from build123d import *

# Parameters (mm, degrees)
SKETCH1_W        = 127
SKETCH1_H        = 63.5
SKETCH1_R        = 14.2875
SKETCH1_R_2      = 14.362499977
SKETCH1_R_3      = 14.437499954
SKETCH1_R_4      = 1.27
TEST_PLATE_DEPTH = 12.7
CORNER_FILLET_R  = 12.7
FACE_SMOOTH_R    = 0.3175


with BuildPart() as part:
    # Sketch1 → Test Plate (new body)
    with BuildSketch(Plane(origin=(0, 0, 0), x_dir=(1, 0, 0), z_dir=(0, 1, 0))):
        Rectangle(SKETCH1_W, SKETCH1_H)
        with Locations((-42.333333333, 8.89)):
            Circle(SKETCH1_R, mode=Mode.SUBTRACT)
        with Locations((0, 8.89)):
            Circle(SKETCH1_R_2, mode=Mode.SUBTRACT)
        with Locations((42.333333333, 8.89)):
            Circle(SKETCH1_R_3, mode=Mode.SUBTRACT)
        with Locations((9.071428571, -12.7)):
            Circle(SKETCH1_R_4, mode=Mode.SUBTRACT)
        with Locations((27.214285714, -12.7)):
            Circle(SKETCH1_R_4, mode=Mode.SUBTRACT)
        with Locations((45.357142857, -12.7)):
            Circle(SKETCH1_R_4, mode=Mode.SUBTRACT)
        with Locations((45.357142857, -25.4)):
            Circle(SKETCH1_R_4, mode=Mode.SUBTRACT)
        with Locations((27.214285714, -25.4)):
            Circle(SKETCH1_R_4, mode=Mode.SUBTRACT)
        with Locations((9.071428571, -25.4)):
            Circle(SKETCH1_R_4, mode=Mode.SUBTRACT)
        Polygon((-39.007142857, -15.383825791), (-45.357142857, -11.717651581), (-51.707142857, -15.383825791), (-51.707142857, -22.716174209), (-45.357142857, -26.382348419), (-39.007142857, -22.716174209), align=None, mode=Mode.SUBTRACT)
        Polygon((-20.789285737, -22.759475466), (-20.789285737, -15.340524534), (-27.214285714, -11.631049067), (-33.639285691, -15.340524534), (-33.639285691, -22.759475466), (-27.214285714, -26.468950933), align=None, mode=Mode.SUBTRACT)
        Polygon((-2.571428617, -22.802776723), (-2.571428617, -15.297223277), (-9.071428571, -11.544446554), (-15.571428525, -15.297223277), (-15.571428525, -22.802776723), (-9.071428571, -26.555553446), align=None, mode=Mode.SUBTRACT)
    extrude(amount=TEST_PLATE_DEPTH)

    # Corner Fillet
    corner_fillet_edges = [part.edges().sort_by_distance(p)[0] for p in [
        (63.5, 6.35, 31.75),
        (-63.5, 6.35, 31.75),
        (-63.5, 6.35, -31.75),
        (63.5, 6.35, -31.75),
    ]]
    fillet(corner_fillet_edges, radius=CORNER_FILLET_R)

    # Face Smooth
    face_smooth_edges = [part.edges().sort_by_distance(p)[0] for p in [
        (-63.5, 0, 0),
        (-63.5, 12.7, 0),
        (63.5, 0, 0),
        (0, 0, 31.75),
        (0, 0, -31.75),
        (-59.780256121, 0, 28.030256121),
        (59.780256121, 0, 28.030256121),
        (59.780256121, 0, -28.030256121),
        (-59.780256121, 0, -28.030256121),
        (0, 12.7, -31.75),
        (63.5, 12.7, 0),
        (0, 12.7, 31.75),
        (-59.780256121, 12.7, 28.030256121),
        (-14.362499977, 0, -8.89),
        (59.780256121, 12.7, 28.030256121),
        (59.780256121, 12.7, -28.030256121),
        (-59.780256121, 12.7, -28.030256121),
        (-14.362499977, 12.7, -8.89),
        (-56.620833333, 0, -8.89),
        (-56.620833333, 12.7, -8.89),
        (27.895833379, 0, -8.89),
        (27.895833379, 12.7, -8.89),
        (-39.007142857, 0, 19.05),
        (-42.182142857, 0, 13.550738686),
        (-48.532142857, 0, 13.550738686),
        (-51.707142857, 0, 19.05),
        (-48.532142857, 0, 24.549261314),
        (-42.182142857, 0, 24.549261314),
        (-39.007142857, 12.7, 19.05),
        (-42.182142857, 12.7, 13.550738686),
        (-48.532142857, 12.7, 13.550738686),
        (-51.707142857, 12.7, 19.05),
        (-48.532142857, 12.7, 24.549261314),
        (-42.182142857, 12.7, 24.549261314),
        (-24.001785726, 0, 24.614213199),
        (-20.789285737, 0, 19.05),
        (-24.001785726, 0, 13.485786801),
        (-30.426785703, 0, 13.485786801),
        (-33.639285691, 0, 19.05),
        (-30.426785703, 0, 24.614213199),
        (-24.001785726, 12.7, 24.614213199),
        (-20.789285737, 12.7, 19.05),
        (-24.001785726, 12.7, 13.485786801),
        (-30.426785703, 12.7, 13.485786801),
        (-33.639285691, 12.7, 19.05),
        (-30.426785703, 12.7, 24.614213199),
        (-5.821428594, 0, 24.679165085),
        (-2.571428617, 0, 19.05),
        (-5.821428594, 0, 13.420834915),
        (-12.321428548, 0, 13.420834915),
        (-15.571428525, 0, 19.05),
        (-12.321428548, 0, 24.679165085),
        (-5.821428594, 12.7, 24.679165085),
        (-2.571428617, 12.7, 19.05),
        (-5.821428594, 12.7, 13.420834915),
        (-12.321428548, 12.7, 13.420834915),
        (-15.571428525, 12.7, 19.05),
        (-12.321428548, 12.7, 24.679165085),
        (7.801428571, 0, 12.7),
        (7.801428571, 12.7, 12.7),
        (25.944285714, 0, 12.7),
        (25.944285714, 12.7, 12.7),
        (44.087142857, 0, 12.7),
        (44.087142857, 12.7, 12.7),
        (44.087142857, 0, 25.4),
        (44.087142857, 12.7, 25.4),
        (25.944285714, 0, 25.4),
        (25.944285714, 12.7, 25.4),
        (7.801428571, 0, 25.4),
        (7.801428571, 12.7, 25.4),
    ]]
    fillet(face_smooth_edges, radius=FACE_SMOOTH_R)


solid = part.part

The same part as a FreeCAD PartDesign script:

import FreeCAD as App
import Part
import Sketcher
Q = App.Units.Quantity


def edges_at(feature, points):
    """Names of the edges that pass closest to the given points."""
    edges = feature.Shape.Edges
    near = lambda p: min(range(len(edges)), key=lambda i: edges[i].distToShape(Part.Vertex(*p))[0])
    return sorted({f"Edge{near(p) + 1}" for p in points})


def add_polygon(sketch, points):
    """Adds a closed chain of lines whose ends are joined by coincident constraints."""
    first, n = sketch.GeometryCount, len(points)
    for a, b in zip(points, points[1:] + points[:1]):
        sketch.addGeometry(Part.LineSegment(App.Vector(*a, 0), App.Vector(*b, 0)), False)
    for i in range(n):
        sketch.addConstraint(Sketcher.Constraint("Coincident", first + i, 2, first + (i + 1) % n, 1))

doc = App.newDocument("Part")
body = doc.addObject("PartDesign::Body", "Body")

# Sketch on XZ plane
sketch1 = body.newObject("Sketcher::SketchObject", "Sketch")
sketch1.AttachmentSupport = (doc.getObject("XZ_Plane"), [""])
sketch1.MapMode = "FlatFace"
add_polygon(sketch1, [(-63.5, -31.8), (-63.5, 31.8), (63.5, 31.8), (63.5, -31.8)])  # lines 0-3
add_polygon(sketch1, [(-45.4, 11.7), (-39, 15.4), (-39, 22.7), (-45.4, 26.4), (-51.7, 22.7), (-51.7, 15.4)])  # lines 4-9
add_polygon(sketch1, [(-20.8, 15.3), (-20.8, 22.8), (-27.2, 26.5), (-33.6, 22.8), (-33.6, 15.3), (-27.2, 11.6)])  # lines 10-15
add_polygon(sketch1, [(-2.6, 15.3), (-2.6, 22.8), (-9.1, 26.6), (-15.6, 22.8), (-15.6, 15.3), (-9.1, 11.5)])  # lines 16-21
sketch1.addGeometry(Part.Circle(App.Vector(9.1, 25.4, 0), App.Vector(0, 0, 1), 1.3), False)  # 22
sketch1.addGeometry(Part.Circle(App.Vector(27.2, 25.4, 0), App.Vector(0, 0, 1), 1.3), False)  # 23
sketch1.addGeometry(Part.Circle(App.Vector(45.4, 25.4, 0), App.Vector(0, 0, 1), 1.3), False)  # 24
sketch1.addGeometry(Part.Circle(App.Vector(9.1, 12.7, 0), App.Vector(0, 0, 1), 1.3), False)  # 25
sketch1.addGeometry(Part.Circle(App.Vector(27.2, 12.7, 0), App.Vector(0, 0, 1), 1.3), False)  # 26
sketch1.addGeometry(Part.Circle(App.Vector(45.4, 12.7, 0), App.Vector(0, 0, 1), 1.3), False)  # 27
sketch1.addGeometry(Part.Circle(App.Vector(-42.3, -8.9, 0), App.Vector(0, 0, 1), 14.3), False)  # 28
sketch1.addGeometry(Part.Circle(App.Vector(0, -8.9, 0), App.Vector(0, 0, 1), 14.4), False)  # 29
sketch1.addGeometry(Part.Circle(App.Vector(42.3, -8.9, 0), App.Vector(0, 0, 1), 14.4), False)  # 30
sketch1.addConstraint([
    Sketcher.Constraint("Vertical", 0),
    Sketcher.Constraint("Horizontal", 1),
    Sketcher.Constraint("Vertical", 2),
    Sketcher.Constraint("Horizontal", 3),
    Sketcher.Constraint("Vertical", 5),
    Sketcher.Constraint("Vertical", 8),
    Sketcher.Constraint("Vertical", 10),
    Sketcher.Constraint("Vertical", 13),
    Sketcher.Constraint("Vertical", 16),
    Sketcher.Constraint("Vertical", 19),
    Sketcher.Constraint("Equal", 22, 23),
    Sketcher.Constraint("Equal", 23, 24),
    Sketcher.Constraint("Equal", 24, 25),
    Sketcher.Constraint("Equal", 25, 26),
    Sketcher.Constraint("Equal", 26, 27),
    Sketcher.Constraint("Symmetric", 0, 2, 2, 2, -1, 1),
    Sketcher.Constraint("Symmetric", 28, 3, 30, 3, -2),
    Sketcher.Constraint("PointOnObject", 29, 3, -2),
    Sketcher.Constraint("Parallel", 4, 7),
    Sketcher.Constraint("Parallel", 6, 9),
    Sketcher.Constraint("Parallel", 9, 11),
    Sketcher.Constraint("Parallel", 7, 12),
    Sketcher.Constraint("Parallel", 11, 14),
    Sketcher.Constraint("Parallel", 12, 15),
    Sketcher.Constraint("Parallel", 14, 17),
    Sketcher.Constraint("Parallel", 15, 18),
    Sketcher.Constraint("Parallel", 17, 20),
    Sketcher.Constraint("Parallel", 18, 21),
    Sketcher.Constraint("Horizontal", 22, 3, 23, 3),
    Sketcher.Constraint("Horizontal", 23, 3, 24, 3),
    Sketcher.Constraint("Horizontal", 25, 3, 26, 3),
    Sketcher.Constraint("Horizontal", 26, 3, 27, 3),
    Sketcher.Constraint("Horizontal", 28, 3, 29, 3),
    Sketcher.Constraint("Horizontal", 5, 2, 7, 2),
    Sketcher.Constraint("Horizontal", 4, 2, 8, 2),
    Sketcher.Constraint("Horizontal", 10, 2, 12, 2),
    Sketcher.Constraint("Horizontal", 13, 2, 15, 2),
    Sketcher.Constraint("Horizontal", 16, 2, 18, 2),
    Sketcher.Constraint("Horizontal", 19, 2, 21, 2),
    Sketcher.Constraint("Vertical", 22, 3, 25, 3),
    Sketcher.Constraint("Vertical", 23, 3, 26, 3),
    Sketcher.Constraint("Vertical", 24, 3, 27, 3),
    Sketcher.Constraint("Vertical", 6, 2, 9, 2),
    Sketcher.Constraint("Diameter", 22, Q("0.1 in")),
    Sketcher.Constraint("DistanceX", 1, 1, 1, 2, Q("5 in")),
    Sketcher.Constraint("Diameter", 28, Q("1.125 in")),
    Sketcher.Constraint("DistanceY", 0, 1, 0, 2, Q("2.5 in")),
    Sketcher.Constraint("DistanceY", -1, 1, 22, 3, Q("1 in")),
    Sketcher.Constraint("Angle", 4, Q("30 deg")),
    Sketcher.Constraint("DistanceY", -1, 1, 25, 3, Q("0.5 in")),
    Sketcher.Constraint("DistanceY", 28, 3, 0, 2, Q("1.6 in")),
    Sketcher.Constraint("DistanceX", 7, 2, 5, 2, Q("0.5 in")),
    Sketcher.Constraint("Diameter", 29, 28.725),
    Sketcher.Constraint("Diameter", 30, 28.875),
    Sketcher.Constraint("DistanceY", 5, 1, 5, 2, 7.332348),
    Sketcher.Constraint("DistanceY", 10, 1, 10, 2, 7.418951),
    Sketcher.Constraint("DistanceY", 5, 2, 10, 2, 0.043301),
    Sketcher.Constraint("DistanceX", 11, 2, 10, 2, 6.425),
    Sketcher.Constraint("DistanceY", 10, 2, 16, 2, 0.043301),
    Sketcher.Constraint("DistanceX", 17, 2, 16, 2, 6.5),
    Sketcher.Constraint("DistanceY", 19, 2, 15, 2, 0.043301),
    Sketcher.Constraint("DistanceX", -1, 1, 22, 3, 9.071429),
    Sketcher.Constraint("DistanceY", -1, 1, 6, 2, 26.382348),
    Sketcher.Constraint("DistanceX", 16, 2, -1, 1, 2.571429),
    Sketcher.Constraint("DistanceX", 28, 3, 25, 3, 51.404762),
    Sketcher.Constraint("DistanceX", 28, 3, 26, 3, 69.547619),
    Sketcher.Constraint("DistanceX", 30, 3, 27, 3, 3.02381),
    Sketcher.Constraint("DistanceX", 28, 3, 4, 2, 3.32619),
    Sketcher.Constraint("DistanceX", 10, 2, -1, 1, 20.789286),
])
pad1 = body.newObject("PartDesign::Pad", "Pad")
pad1.Profile = sketch1
pad1.Length = Q("0.5 in")
pad1.Reversed = True
doc.recompute()

fillet = body.newObject("PartDesign::Fillet", "Fillet")
fillet.Base = (pad1, edges_at(pad1, [
    (63.5, 6.35, 31.75),
    (-63.5, 6.35, 31.75),
    (-63.5, 6.35, -31.75),
    (63.5, 6.35, -31.75),
]))
fillet.Radius = Q("0.5 in")
doc.recompute()

fillet2 = body.newObject("PartDesign::Fillet", "Fillet001")
fillet2.Base = (fillet, edges_at(fillet, [
    (-63.5, 0, 0),
    (-63.5, 12.7, 0),
    (63.5, 0, 0),
    (0, 0, 31.75),
    (0, 0, -31.75),
    (-59.78, 0, 28.03),
    (59.78, 0, 28.03),
    (59.78, 0, -28.03),
    (-59.78, 0, -28.03),
    (0, 12.7, -31.75),
    (63.5, 12.7, 0),
    (0, 12.7, 31.75),
    (-59.78, 12.7, 28.03),
    (-14.362, 0, -8.89),
    (59.78, 12.7, 28.03),
    (59.78, 12.7, -28.03),
    (-59.78, 12.7, -28.03),
    (-14.362, 12.7, -8.89),
    (-56.621, 0, -8.89),
    (-56.621, 12.7, -8.89),
    (27.896, 0, -8.89),
    (27.896, 12.7, -8.89),
    (-39.007, 0, 19.05),
    (-42.182, 0, 13.551),
    (-48.532, 0, 13.551),
    (-51.707, 0, 19.05),
    (-48.532, 0, 24.549),
    (-42.182, 0, 24.549),
    (-39.007, 12.7, 19.05),
    (-42.182, 12.7, 13.551),
    (-48.532, 12.7, 13.551),
    (-51.707, 12.7, 19.05),
    (-48.532, 12.7, 24.549),
    (-42.182, 12.7, 24.549),
    (-24.002, 0, 24.614),
    (-20.789, 0, 19.05),
    (-24.002, 0, 13.486),
    (-30.427, 0, 13.486),
    (-33.639, 0, 19.05),
    (-30.427, 0, 24.614),
    (-24.002, 12.7, 24.614),
    (-20.789, 12.7, 19.05),
    (-24.002, 12.7, 13.486),
    (-30.427, 12.7, 13.486),
    (-33.639, 12.7, 19.05),
    (-30.427, 12.7, 24.614),
    (-5.821, 0, 24.679),
    (-2.571, 0, 19.05),
    (-5.821, 0, 13.421),
    (-12.321, 0, 13.421),
    (-15.571, 0, 19.05),
    (-12.321, 0, 24.679),
    (-5.821, 12.7, 24.679),
    (-2.571, 12.7, 19.05),
    (-5.821, 12.7, 13.421),
    (-12.321, 12.7, 13.421),
    (-15.571, 12.7, 19.05),
    (-12.321, 12.7, 24.679),
    (7.801, 0, 12.7),
    (7.801, 12.7, 12.7),
    (25.944, 0, 12.7),
    (25.944, 12.7, 12.7),
    (44.087, 0, 12.7),
    (44.087, 12.7, 12.7),
    (44.087, 0, 25.4),
    (44.087, 12.7, 25.4),
    (25.944, 0, 25.4),
    (25.944, 12.7, 25.4),
    (7.801, 0, 25.4),
    (7.801, 12.7, 25.4),
]))
fillet2.Radius = Q("0.0125 in")

doc.recompute()
